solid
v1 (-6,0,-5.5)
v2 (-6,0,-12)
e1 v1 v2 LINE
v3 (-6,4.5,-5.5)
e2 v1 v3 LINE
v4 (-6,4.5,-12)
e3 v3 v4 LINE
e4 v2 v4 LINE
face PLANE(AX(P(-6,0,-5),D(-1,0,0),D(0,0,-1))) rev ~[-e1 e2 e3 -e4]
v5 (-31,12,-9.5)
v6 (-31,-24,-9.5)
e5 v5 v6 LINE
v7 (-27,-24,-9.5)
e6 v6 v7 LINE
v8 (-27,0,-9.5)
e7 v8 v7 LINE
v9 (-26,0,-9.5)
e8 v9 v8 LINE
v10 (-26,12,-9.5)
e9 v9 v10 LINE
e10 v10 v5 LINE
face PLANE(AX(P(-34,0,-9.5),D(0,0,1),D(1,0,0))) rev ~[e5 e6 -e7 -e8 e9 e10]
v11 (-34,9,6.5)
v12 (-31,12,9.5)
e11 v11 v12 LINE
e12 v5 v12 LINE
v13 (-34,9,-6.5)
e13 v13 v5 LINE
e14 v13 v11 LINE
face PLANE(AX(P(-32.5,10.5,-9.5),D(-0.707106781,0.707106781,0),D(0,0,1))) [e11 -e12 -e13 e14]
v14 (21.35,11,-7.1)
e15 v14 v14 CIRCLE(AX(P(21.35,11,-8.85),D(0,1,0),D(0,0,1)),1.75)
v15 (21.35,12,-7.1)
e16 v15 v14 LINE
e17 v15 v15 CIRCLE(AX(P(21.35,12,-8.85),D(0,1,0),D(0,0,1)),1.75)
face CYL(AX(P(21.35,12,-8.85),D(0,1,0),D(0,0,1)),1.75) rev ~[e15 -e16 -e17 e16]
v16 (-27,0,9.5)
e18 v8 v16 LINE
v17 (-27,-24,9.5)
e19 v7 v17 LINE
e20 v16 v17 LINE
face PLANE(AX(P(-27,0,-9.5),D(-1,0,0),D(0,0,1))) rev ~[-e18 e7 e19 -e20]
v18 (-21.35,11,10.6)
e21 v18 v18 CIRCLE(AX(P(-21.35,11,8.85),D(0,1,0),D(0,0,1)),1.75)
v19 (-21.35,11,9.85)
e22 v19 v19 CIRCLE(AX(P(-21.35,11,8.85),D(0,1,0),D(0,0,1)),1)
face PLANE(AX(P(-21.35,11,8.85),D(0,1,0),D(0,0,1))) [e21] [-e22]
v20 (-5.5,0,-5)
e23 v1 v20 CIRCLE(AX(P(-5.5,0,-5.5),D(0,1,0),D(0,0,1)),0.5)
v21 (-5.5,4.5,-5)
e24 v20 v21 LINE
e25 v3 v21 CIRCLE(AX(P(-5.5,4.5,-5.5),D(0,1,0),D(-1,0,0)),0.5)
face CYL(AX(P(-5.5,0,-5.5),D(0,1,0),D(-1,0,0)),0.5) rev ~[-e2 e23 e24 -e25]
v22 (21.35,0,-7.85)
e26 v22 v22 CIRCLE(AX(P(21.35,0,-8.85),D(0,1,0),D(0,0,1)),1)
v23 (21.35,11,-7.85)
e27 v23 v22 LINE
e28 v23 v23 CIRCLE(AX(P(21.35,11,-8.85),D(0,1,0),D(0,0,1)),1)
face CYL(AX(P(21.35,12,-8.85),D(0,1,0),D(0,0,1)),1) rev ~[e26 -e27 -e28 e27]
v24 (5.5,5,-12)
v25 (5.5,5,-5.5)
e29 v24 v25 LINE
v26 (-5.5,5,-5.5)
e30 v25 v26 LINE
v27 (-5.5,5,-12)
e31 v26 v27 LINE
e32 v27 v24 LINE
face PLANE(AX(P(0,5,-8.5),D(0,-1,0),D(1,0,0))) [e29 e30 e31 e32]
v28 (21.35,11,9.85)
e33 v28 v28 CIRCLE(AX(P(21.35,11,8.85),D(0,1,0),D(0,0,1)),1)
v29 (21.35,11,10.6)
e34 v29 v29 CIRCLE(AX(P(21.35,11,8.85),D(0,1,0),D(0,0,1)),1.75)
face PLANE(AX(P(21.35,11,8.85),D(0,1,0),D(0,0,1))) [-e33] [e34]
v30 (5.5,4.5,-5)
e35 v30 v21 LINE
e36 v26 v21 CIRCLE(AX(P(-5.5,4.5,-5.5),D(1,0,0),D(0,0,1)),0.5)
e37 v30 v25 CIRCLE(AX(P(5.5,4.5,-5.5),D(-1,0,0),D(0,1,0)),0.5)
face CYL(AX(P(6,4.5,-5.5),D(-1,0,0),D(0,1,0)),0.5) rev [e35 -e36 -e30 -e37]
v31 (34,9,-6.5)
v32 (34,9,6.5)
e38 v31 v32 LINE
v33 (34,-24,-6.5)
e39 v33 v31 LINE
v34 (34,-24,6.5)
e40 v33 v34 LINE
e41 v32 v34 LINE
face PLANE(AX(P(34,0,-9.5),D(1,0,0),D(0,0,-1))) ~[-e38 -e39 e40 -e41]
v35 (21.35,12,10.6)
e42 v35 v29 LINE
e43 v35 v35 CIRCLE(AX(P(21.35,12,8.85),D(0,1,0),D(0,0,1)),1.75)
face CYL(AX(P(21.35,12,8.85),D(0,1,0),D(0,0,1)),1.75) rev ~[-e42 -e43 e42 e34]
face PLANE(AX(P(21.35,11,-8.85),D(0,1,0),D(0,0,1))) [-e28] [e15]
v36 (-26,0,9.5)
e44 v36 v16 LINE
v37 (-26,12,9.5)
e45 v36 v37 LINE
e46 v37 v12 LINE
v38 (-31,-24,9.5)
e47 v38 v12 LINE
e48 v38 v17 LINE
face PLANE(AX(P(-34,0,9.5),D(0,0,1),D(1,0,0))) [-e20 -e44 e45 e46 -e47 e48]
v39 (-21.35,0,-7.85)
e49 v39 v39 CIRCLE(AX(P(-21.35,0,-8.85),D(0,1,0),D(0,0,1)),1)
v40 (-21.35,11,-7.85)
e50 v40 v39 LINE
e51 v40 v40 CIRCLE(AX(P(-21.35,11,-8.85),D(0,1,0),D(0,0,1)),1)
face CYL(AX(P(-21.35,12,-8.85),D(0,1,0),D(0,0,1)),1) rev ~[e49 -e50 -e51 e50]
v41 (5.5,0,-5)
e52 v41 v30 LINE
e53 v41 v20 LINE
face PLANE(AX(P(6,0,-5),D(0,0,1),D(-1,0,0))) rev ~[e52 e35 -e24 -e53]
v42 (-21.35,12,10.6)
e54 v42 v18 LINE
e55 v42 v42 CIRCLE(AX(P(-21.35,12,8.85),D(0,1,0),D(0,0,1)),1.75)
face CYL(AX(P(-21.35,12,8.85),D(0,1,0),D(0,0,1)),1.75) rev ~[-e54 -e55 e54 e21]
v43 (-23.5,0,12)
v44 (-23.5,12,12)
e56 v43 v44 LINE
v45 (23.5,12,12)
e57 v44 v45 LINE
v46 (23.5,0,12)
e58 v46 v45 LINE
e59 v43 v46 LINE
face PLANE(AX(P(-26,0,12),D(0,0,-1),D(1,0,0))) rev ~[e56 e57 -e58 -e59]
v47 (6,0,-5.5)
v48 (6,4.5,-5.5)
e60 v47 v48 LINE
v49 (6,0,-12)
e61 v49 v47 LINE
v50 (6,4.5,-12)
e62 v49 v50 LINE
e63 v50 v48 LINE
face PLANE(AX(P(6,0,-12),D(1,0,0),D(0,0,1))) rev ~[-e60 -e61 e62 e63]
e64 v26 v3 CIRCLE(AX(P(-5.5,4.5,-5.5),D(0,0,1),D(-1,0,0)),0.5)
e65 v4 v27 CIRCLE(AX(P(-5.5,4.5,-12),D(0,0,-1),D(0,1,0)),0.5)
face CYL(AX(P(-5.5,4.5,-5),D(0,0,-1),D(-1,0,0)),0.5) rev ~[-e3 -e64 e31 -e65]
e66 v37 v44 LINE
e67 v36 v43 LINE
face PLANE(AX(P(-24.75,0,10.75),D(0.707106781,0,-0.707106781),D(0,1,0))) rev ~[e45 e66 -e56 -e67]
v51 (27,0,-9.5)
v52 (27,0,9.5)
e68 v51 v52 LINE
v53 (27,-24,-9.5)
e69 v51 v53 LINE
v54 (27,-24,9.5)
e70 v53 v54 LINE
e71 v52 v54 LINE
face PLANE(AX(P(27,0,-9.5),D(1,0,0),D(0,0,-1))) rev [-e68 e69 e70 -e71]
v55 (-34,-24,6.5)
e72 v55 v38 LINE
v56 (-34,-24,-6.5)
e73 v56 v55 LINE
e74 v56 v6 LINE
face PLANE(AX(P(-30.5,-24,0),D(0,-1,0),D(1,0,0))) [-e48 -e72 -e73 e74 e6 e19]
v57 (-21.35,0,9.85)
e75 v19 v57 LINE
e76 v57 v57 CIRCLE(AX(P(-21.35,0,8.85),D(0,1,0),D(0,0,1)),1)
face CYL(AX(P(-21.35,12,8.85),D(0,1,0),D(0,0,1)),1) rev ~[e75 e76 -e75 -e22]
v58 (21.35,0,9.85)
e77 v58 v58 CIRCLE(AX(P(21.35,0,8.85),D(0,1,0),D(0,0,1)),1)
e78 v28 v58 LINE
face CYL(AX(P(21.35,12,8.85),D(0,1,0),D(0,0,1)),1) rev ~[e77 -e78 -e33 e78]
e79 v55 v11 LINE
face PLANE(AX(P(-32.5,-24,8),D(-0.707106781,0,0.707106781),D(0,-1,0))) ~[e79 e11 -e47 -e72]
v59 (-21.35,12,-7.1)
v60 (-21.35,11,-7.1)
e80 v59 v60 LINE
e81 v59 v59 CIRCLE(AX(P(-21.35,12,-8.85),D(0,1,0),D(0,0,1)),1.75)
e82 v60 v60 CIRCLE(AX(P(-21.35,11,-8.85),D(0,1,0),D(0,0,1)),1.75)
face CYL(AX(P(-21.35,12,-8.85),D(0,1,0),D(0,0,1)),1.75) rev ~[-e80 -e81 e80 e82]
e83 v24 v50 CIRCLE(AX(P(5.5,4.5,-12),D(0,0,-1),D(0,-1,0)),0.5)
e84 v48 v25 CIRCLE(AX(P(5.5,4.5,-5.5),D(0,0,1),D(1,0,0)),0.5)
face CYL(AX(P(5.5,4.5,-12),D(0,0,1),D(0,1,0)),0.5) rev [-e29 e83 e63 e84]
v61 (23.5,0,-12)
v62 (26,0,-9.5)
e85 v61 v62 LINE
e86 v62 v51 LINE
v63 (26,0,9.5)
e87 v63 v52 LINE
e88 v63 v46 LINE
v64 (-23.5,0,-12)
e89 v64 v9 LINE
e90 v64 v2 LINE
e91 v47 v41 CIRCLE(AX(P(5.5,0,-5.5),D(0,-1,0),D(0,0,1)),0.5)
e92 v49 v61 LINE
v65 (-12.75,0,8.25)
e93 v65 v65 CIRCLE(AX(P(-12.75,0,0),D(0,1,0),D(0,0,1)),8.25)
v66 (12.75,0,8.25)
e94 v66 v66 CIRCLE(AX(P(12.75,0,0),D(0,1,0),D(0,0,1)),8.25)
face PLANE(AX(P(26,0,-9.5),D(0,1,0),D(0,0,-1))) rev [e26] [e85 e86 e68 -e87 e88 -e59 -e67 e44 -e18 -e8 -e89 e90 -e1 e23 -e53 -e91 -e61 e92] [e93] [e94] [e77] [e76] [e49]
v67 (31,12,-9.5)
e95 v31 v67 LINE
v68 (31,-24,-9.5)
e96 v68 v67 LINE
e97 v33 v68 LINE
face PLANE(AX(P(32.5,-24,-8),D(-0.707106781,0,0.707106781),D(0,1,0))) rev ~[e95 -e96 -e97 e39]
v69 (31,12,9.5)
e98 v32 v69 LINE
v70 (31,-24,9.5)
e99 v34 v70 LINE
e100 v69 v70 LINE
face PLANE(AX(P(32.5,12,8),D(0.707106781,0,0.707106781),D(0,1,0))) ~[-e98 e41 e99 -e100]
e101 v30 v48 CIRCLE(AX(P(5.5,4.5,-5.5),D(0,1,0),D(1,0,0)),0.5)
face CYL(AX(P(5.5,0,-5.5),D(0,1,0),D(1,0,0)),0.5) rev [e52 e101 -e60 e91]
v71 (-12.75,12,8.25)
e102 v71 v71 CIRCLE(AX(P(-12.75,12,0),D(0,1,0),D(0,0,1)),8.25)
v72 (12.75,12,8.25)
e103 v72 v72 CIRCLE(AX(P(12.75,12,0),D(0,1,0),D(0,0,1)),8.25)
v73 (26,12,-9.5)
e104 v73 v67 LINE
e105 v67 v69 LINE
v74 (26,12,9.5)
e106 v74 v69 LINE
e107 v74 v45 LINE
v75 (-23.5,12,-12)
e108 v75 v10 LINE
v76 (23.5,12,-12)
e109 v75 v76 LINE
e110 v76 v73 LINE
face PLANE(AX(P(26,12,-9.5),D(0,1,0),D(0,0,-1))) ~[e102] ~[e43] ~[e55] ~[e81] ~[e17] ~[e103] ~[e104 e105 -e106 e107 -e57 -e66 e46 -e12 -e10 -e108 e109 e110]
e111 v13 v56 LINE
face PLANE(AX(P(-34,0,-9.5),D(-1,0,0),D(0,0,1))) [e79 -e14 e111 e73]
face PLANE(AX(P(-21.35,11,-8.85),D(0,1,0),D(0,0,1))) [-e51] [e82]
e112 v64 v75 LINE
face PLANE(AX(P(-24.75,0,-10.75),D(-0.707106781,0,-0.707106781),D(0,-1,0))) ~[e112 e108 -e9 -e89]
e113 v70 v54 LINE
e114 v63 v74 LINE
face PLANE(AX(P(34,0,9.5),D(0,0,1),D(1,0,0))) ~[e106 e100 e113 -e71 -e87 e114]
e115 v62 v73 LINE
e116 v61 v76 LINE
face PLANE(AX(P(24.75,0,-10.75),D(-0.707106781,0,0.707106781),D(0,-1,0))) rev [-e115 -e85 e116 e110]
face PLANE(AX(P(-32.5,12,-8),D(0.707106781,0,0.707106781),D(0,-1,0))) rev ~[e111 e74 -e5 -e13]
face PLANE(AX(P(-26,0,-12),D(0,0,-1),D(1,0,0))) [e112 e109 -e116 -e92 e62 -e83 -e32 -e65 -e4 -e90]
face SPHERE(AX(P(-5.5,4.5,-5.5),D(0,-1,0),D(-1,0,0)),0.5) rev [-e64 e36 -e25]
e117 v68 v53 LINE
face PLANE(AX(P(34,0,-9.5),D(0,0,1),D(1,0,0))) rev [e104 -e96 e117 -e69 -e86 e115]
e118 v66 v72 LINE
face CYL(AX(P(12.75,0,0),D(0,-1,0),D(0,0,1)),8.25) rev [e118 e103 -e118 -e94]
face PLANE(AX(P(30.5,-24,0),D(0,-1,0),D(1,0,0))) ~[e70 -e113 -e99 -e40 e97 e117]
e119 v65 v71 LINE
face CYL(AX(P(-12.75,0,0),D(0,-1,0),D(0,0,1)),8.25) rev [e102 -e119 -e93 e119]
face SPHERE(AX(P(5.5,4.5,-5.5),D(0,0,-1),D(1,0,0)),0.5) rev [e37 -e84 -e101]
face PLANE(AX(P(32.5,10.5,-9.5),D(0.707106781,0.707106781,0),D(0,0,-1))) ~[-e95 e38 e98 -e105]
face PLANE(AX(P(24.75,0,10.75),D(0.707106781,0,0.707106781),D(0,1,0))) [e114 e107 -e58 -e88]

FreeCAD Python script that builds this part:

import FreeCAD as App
import Part
import Sketcher

V = App.Vector
Q = App.Units.Quantity


def edges_at(feature, points):
    """Names of the edges that pass closest to the given points."""
    edges = feature.Shape.Edges
    near = lambda p: min(range(len(edges)), key=lambda i: edges[i].distToShape(Part.Vertex(*p))[0])
    return sorted({f"Edge{near(p) + 1}" for p in points})


def add_polygon(sketch, points):
    """Adds a closed chain of lines whose ends are joined by coincident constraints."""
    first, n = sketch.GeometryCount, len(points)
    for a, b in zip(points, points[1:] + points[:1]):
        sketch.addGeometry(Part.LineSegment(App.Vector(*a, 0), App.Vector(*b, 0)), False)
    for i in range(n):
        sketch.addConstraint(Sketcher.Constraint("Coincident", first + i, 2, first + (i + 1) % n, 1))

doc = App.newDocument("Part")
body = doc.addObject("PartDesign::Body", "Body")

sketch1 = doc.addObject("Sketcher::SketchObject", "Sketch")
body.addObject(sketch1)
sketch1.AttachmentSupport = (doc.XZ_Plane, [""])
sketch1.MapMode = "FlatFace"
add_polygon(sketch1, [(-26, -12), (-26, 12), (26, 12), (26, -12)])
sketch1.addGeometry(Part.Circle(V(-13, 0, 0), V(0, 0, 1), 8), False)
sketch1.addGeometry(Part.Circle(V(13, 0, 0), V(0, 0, 1), 8), False)
sketch1.addConstraint(Sketcher.Constraint("Vertical", 0))
sketch1.addConstraint(Sketcher.Constraint("Horizontal", 1))
sketch1.addConstraint(Sketcher.Constraint("Vertical", 2))
sketch1.addConstraint(Sketcher.Constraint("Horizontal", 3))
sketch1.addConstraint(Sketcher.Constraint("Equal", 4, 5))
sketch1.addConstraint(Sketcher.Constraint("Symmetric", 4, 3, 5, 3, -1, 1))
sketch1.addConstraint(Sketcher.Constraint("Symmetric", 0, 2, 2, 2, -1, 1))
sketch1.addConstraint(Sketcher.Constraint("PointOnObject", 4, 3, -1))
sketch1.addConstraint(Sketcher.Constraint("Diameter", 4, Q("16.5 mm")))
sketch1.addConstraint(Sketcher.Constraint("DistanceX", 1, 1, 1, 2, Q("52 mm")))
sketch1.addConstraint(Sketcher.Constraint("DistanceY", 0, 1, 0, 2, Q("24 mm")))
sketch1.addConstraint(Sketcher.Constraint("DistanceX", 4, 3, 5, 3, Q("25.5 mm")))
pad1 = doc.addObject("PartDesign::Pad", "Pad")
body.addObject(pad1)
pad1.Profile = sketch1
pad1.Length = 12
pad1.Reversed = True

sketch2 = doc.addObject("Sketcher::SketchObject", "Sketch001")
body.addObject(sketch2)
sketch2.AttachmentSupport = (doc.XZ_Plane, [""])
sketch2.MapMode = "FlatFace"
sketch2.AttachmentOffset = App.Placement(V(0, 0, -12), App.Rotation())
sketch2.addGeometry(Part.Circle(V(-21.4, -8.8, 0), V(0, 0, 1), 1), False)
sketch2.addGeometry(Part.Circle(V(21.4, -8.8, 0), V(0, 0, 1), 1), False)
sketch2.addGeometry(Part.Circle(V(21.4, 8.8, 0), V(0, 0, 1), 1), False)
sketch2.addGeometry(Part.Circle(V(-21.4, 8.8, 0), V(0, 0, 1), 1), False)
sketch2.addConstraint(Sketcher.Constraint("Equal", 0, 1))
sketch2.addConstraint(Sketcher.Constraint("Equal", 1, 2))
sketch2.addConstraint(Sketcher.Constraint("Equal", 2, 3))
sketch2.addConstraint(Sketcher.Constraint("Symmetric", 0, 3, 2, 3, -1, 1))
sketch2.addConstraint(Sketcher.Constraint("Symmetric", 1, 3, 3, 3, -1, 1))
sketch2.addConstraint(Sketcher.Constraint("Symmetric", 0, 3, 1, 3, -2))
sketch2.addConstraint(Sketcher.Constraint("Diameter", 0, Q("2 mm")))
sketch2.addConstraint(Sketcher.Constraint("DistanceX", 0, 3, 1, 3, Q("42.7 mm")))
sketch2.addConstraint(Sketcher.Constraint("DistanceY", 1, 3, 2, 3, Q("17.7 mm")))
pocket1 = doc.addObject("PartDesign::Pocket", "Pocket")
body.addObject(pocket1)
pocket1.Profile = sketch2
pocket1.Type = "ThroughAll"
pocket1.Reversed = True

sketch3 = doc.addObject("Sketcher::SketchObject", "Sketch002")
body.addObject(sketch3)
sketch3.AttachmentSupport = (doc.XZ_Plane, [""])
sketch3.MapMode = "FlatFace"
sketch3.AttachmentOffset = App.Placement(V(0, 0, -12), App.Rotation())
sketch3.addGeometry(Part.Circle(V(-21.4, -8.8, 0), V(0, 0, 1), 1.8), False)
sketch3.addGeometry(Part.Circle(V(21.4, -8.8, 0), V(0, 0, 1), 1.8), False)
sketch3.addGeometry(Part.Circle(V(21.4, 8.8, 0), V(0, 0, 1), 1.8), False)
sketch3.addGeometry(Part.Circle(V(-21.4, 8.8, 0), V(0, 0, 1), 1.8), False)
sketch3.addConstraint(Sketcher.Constraint("Equal", 0, 1))
sketch3.addConstraint(Sketcher.Constraint("Equal", 1, 2))
sketch3.addConstraint(Sketcher.Constraint("Equal", 2, 3))
sketch3.addConstraint(Sketcher.Constraint("Symmetric", 0, 3, 2, 3, -1, 1))
sketch3.addConstraint(Sketcher.Constraint("Symmetric", 1, 3, 3, 3, -1, 1))
sketch3.addConstraint(Sketcher.Constraint("Symmetric", 0, 3, 1, 3, -2))
sketch3.addConstraint(Sketcher.Constraint("Diameter", 0, Q("3.5 mm")))
sketch3.addConstraint(Sketcher.Constraint("DistanceX", 0, 3, 1, 3, Q("42.7 mm")))
sketch3.addConstraint(Sketcher.Constraint("DistanceY", 1, 3, 2, 3, Q("17.7 mm")))
pocket2 = doc.addObject("PartDesign::Pocket", "Pocket001")
body.addObject(pocket2)
pocket2.Profile = sketch3
pocket2.Length = 1
pocket2.Reversed = True

sketch4 = doc.addObject("Sketcher::SketchObject", "Sketch003")
body.addObject(sketch4)
sketch4.AttachmentSupport = (doc.XZ_Plane, [""])
sketch4.MapMode = "FlatFace"
add_polygon(sketch4, [(-6, -5), (-6, -12), (6, -12), (6, -5)])
sketch4.addConstraint(Sketcher.Constraint("Vertical", 0))
sketch4.addConstraint(Sketcher.Constraint("Horizontal", 1))
sketch4.addConstraint(Sketcher.Constraint("Vertical", 2))
sketch4.addConstraint(Sketcher.Constraint("Horizontal", 3))
sketch4.addConstraint(Sketcher.Constraint("DistanceX", 1, 1, 1, 2, Q("12 mm")))
sketch4.addConstraint(Sketcher.Constraint("DistanceY", 0, 2, 0, 1, Q("7 mm")))
sketch4.addConstraint(Sketcher.Constraint("DistanceX", 0, 2, -1, 1, Q("6 mm")))
sketch4.addConstraint(Sketcher.Constraint("DistanceY", 0, 2, -1, 1, Q("12 mm")))
pocket3 = doc.addObject("PartDesign::Pocket", "Pocket002")
body.addObject(pocket3)
pocket3.Profile = sketch4
pocket3.Length = 5
doc.recompute()

fillet = doc.addObject("PartDesign::Fillet", "Fillet")
body.addObject(fillet)
fillet.Base = (pocket3, edges_at(pocket3, [
    (-6, 2.5, -5),
    (6, 5, -8.5),
    (6, 2.5, -5),
    (-6, 5, -8.5),
    (0, 5, -5),
]))
fillet.Radius = 0.5
doc.recompute()

chamfer = doc.addObject("PartDesign::Chamfer", "Chamfer")
body.addObject(chamfer)
chamfer.Base = (fillet, edges_at(fillet, [
    (26, 6, 12),
    (-26, 6, 12),
    (-26, 6, -12),
    (26, 6, -12),
]))
chamfer.Size = 2.5

sketch5 = doc.addObject("Sketcher::SketchObject", "Sketch004")
body.addObject(sketch5)
sketch5.AttachmentSupport = (doc.YZ_Plane, [""])
sketch5.MapMode = "FlatFace"
sketch5.AttachmentOffset = App.Placement(V(0, 0, -26), App.Rotation())
add_polygon(sketch5, [(12, -10), (0, -10), (0, 10), (12, 10)])
sketch5.addConstraint(Sketcher.Constraint("Horizontal", 0))
sketch5.addConstraint(Sketcher.Constraint("Vertical", 1))
sketch5.addConstraint(Sketcher.Constraint("Horizontal", 2))
sketch5.addConstraint(Sketcher.Constraint("Vertical", 3))
sketch5.addConstraint(Sketcher.Constraint("Symmetric", 0, 2, 1, 2, -1, 1))
sketch5.addConstraint(Sketcher.Constraint("DistanceX", 0, 2, 0, 1, Q("12 mm")))
sketch5.addConstraint(Sketcher.Constraint("DistanceY", 1, 1, 1, 2, Q("19 mm")))
pad2 = doc.addObject("PartDesign::Pad", "Pad001")
body.addObject(pad2)
pad2.Profile = sketch5
pad2.Length = 8
pad2.Reversed = True

sketch6 = doc.addObject("Sketcher::SketchObject", "Sketch005")
body.addObject(sketch6)
sketch6.AttachmentSupport = (doc.XZ_Plane, [""])
sketch6.MapMode = "FlatFace"
add_polygon(sketch6, [(-34, 10), (-34, -10), (-27, -10), (-27, 10)])
sketch6.addConstraint(Sketcher.Constraint("Vertical", 0))
sketch6.addConstraint(Sketcher.Constraint("Horizontal", 1))
sketch6.addConstraint(Sketcher.Constraint("Vertical", 2))
sketch6.addConstraint(Sketcher.Constraint("Horizontal", 3))
sketch6.addConstraint(Sketcher.Constraint("DistanceX", 1, 1, 1, 2, Q("7 mm")))
sketch6.addConstraint(Sketcher.Constraint("DistanceY", 0, 2, 0, 1, Q("19 mm")))
sketch6.addConstraint(Sketcher.Constraint("DistanceX", 0, 2, -1, 1, Q("34 mm")))
sketch6.addConstraint(Sketcher.Constraint("DistanceY", 0, 2, -1, 1, Q("9.5 mm")))
pad3 = doc.addObject("PartDesign::Pad", "Pad002")
body.addObject(pad3)
pad3.Profile = sketch6
pad3.Length = 24
doc.recompute()

chamfer2 = doc.addObject("PartDesign::Chamfer", "Chamfer001")
body.addObject(chamfer2)
chamfer2.Base = (pad3, edges_at(pad3, [(-34, -6, 9.5), (-34, 12, 0), (-34, -6, -9.5)]))
chamfer2.Size = 3
doc.recompute()

mirrored = doc.addObject("PartDesign::Mirrored", "Mirrored")
body.addObject(mirrored)
mirrored.Originals = [pad2, pad3]
mirrored.MirrorPlane = (doc.YZ_Plane, [""])
body.Tip = mirrored
doc.recompute()

chamfer3 = doc.addObject("PartDesign::Chamfer", "Chamfer002")
body.addObject(chamfer3)
chamfer3.Base = (mirrored, edges_at(mirrored, [(34, -6, 9.5), (34, 12, 0), (34, -6, -9.5)]))
chamfer3.Size = 3

doc.recompute()
